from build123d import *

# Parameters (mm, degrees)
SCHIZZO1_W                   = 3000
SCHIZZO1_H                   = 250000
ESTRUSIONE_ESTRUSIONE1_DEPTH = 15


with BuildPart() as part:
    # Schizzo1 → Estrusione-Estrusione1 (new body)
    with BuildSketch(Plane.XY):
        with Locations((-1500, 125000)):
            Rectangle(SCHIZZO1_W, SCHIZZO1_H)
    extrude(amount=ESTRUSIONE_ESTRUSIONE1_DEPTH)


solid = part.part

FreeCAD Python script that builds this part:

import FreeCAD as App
import Part
import Sketcher
Q = App.Units.Quantity

doc = App.newDocument("Part")
body = doc.addObject("PartDesign::Body", "Body")

# Sketch on XY plane
sketch1 = body.newObject("Sketcher::SketchObject", "Sketch")
sketch1.AttachmentSupport = (doc.getObject("XY_Plane"), [""])
sketch1.MapMode = "FlatFace"
sketch1.addGeometry([
    Part.LineSegment(App.Vector(-3000, 250000, 0), App.Vector(-3000, 0, 0)),
    Part.LineSegment(App.Vector(-3000, 0, 0), App.Vector(0, 0, 0)),
    Part.LineSegment(App.Vector(0, 0, 0), App.Vector(0, 250000, 0)),
    Part.LineSegment(App.Vector(0, 250000, 0), App.Vector(-3000, 250000, 0)),
], False)
sketch1.addConstraint([
    Sketcher.Constraint("Coincident", 0, 2, 1, 1),
    Sketcher.Constraint("Coincident", 1, 2, 2, 1),
    Sketcher.Constraint("Coincident", 2, 2, 3, 1),
    Sketcher.Constraint("Coincident", 3, 2, 0, 1),
    Sketcher.Constraint("Vertical", 0),
    Sketcher.Constraint("Horizontal", 1),
    Sketcher.Constraint("Vertical", 2),
    Sketcher.Constraint("Horizontal", 3),
    Sketcher.Constraint("Coincident", 1, 2, -1, 1),
    Sketcher.Constraint("DistanceX", 1, 1, 1, 2, Q("3000 mm")),
    Sketcher.Constraint("DistanceY", 0, 2, 0, 1, Q("250000 mm")),
])
pad1 = body.newObject("PartDesign::Pad", "Pad")
pad1.Profile = sketch1
pad1.Length = 15

doc.recompute()
